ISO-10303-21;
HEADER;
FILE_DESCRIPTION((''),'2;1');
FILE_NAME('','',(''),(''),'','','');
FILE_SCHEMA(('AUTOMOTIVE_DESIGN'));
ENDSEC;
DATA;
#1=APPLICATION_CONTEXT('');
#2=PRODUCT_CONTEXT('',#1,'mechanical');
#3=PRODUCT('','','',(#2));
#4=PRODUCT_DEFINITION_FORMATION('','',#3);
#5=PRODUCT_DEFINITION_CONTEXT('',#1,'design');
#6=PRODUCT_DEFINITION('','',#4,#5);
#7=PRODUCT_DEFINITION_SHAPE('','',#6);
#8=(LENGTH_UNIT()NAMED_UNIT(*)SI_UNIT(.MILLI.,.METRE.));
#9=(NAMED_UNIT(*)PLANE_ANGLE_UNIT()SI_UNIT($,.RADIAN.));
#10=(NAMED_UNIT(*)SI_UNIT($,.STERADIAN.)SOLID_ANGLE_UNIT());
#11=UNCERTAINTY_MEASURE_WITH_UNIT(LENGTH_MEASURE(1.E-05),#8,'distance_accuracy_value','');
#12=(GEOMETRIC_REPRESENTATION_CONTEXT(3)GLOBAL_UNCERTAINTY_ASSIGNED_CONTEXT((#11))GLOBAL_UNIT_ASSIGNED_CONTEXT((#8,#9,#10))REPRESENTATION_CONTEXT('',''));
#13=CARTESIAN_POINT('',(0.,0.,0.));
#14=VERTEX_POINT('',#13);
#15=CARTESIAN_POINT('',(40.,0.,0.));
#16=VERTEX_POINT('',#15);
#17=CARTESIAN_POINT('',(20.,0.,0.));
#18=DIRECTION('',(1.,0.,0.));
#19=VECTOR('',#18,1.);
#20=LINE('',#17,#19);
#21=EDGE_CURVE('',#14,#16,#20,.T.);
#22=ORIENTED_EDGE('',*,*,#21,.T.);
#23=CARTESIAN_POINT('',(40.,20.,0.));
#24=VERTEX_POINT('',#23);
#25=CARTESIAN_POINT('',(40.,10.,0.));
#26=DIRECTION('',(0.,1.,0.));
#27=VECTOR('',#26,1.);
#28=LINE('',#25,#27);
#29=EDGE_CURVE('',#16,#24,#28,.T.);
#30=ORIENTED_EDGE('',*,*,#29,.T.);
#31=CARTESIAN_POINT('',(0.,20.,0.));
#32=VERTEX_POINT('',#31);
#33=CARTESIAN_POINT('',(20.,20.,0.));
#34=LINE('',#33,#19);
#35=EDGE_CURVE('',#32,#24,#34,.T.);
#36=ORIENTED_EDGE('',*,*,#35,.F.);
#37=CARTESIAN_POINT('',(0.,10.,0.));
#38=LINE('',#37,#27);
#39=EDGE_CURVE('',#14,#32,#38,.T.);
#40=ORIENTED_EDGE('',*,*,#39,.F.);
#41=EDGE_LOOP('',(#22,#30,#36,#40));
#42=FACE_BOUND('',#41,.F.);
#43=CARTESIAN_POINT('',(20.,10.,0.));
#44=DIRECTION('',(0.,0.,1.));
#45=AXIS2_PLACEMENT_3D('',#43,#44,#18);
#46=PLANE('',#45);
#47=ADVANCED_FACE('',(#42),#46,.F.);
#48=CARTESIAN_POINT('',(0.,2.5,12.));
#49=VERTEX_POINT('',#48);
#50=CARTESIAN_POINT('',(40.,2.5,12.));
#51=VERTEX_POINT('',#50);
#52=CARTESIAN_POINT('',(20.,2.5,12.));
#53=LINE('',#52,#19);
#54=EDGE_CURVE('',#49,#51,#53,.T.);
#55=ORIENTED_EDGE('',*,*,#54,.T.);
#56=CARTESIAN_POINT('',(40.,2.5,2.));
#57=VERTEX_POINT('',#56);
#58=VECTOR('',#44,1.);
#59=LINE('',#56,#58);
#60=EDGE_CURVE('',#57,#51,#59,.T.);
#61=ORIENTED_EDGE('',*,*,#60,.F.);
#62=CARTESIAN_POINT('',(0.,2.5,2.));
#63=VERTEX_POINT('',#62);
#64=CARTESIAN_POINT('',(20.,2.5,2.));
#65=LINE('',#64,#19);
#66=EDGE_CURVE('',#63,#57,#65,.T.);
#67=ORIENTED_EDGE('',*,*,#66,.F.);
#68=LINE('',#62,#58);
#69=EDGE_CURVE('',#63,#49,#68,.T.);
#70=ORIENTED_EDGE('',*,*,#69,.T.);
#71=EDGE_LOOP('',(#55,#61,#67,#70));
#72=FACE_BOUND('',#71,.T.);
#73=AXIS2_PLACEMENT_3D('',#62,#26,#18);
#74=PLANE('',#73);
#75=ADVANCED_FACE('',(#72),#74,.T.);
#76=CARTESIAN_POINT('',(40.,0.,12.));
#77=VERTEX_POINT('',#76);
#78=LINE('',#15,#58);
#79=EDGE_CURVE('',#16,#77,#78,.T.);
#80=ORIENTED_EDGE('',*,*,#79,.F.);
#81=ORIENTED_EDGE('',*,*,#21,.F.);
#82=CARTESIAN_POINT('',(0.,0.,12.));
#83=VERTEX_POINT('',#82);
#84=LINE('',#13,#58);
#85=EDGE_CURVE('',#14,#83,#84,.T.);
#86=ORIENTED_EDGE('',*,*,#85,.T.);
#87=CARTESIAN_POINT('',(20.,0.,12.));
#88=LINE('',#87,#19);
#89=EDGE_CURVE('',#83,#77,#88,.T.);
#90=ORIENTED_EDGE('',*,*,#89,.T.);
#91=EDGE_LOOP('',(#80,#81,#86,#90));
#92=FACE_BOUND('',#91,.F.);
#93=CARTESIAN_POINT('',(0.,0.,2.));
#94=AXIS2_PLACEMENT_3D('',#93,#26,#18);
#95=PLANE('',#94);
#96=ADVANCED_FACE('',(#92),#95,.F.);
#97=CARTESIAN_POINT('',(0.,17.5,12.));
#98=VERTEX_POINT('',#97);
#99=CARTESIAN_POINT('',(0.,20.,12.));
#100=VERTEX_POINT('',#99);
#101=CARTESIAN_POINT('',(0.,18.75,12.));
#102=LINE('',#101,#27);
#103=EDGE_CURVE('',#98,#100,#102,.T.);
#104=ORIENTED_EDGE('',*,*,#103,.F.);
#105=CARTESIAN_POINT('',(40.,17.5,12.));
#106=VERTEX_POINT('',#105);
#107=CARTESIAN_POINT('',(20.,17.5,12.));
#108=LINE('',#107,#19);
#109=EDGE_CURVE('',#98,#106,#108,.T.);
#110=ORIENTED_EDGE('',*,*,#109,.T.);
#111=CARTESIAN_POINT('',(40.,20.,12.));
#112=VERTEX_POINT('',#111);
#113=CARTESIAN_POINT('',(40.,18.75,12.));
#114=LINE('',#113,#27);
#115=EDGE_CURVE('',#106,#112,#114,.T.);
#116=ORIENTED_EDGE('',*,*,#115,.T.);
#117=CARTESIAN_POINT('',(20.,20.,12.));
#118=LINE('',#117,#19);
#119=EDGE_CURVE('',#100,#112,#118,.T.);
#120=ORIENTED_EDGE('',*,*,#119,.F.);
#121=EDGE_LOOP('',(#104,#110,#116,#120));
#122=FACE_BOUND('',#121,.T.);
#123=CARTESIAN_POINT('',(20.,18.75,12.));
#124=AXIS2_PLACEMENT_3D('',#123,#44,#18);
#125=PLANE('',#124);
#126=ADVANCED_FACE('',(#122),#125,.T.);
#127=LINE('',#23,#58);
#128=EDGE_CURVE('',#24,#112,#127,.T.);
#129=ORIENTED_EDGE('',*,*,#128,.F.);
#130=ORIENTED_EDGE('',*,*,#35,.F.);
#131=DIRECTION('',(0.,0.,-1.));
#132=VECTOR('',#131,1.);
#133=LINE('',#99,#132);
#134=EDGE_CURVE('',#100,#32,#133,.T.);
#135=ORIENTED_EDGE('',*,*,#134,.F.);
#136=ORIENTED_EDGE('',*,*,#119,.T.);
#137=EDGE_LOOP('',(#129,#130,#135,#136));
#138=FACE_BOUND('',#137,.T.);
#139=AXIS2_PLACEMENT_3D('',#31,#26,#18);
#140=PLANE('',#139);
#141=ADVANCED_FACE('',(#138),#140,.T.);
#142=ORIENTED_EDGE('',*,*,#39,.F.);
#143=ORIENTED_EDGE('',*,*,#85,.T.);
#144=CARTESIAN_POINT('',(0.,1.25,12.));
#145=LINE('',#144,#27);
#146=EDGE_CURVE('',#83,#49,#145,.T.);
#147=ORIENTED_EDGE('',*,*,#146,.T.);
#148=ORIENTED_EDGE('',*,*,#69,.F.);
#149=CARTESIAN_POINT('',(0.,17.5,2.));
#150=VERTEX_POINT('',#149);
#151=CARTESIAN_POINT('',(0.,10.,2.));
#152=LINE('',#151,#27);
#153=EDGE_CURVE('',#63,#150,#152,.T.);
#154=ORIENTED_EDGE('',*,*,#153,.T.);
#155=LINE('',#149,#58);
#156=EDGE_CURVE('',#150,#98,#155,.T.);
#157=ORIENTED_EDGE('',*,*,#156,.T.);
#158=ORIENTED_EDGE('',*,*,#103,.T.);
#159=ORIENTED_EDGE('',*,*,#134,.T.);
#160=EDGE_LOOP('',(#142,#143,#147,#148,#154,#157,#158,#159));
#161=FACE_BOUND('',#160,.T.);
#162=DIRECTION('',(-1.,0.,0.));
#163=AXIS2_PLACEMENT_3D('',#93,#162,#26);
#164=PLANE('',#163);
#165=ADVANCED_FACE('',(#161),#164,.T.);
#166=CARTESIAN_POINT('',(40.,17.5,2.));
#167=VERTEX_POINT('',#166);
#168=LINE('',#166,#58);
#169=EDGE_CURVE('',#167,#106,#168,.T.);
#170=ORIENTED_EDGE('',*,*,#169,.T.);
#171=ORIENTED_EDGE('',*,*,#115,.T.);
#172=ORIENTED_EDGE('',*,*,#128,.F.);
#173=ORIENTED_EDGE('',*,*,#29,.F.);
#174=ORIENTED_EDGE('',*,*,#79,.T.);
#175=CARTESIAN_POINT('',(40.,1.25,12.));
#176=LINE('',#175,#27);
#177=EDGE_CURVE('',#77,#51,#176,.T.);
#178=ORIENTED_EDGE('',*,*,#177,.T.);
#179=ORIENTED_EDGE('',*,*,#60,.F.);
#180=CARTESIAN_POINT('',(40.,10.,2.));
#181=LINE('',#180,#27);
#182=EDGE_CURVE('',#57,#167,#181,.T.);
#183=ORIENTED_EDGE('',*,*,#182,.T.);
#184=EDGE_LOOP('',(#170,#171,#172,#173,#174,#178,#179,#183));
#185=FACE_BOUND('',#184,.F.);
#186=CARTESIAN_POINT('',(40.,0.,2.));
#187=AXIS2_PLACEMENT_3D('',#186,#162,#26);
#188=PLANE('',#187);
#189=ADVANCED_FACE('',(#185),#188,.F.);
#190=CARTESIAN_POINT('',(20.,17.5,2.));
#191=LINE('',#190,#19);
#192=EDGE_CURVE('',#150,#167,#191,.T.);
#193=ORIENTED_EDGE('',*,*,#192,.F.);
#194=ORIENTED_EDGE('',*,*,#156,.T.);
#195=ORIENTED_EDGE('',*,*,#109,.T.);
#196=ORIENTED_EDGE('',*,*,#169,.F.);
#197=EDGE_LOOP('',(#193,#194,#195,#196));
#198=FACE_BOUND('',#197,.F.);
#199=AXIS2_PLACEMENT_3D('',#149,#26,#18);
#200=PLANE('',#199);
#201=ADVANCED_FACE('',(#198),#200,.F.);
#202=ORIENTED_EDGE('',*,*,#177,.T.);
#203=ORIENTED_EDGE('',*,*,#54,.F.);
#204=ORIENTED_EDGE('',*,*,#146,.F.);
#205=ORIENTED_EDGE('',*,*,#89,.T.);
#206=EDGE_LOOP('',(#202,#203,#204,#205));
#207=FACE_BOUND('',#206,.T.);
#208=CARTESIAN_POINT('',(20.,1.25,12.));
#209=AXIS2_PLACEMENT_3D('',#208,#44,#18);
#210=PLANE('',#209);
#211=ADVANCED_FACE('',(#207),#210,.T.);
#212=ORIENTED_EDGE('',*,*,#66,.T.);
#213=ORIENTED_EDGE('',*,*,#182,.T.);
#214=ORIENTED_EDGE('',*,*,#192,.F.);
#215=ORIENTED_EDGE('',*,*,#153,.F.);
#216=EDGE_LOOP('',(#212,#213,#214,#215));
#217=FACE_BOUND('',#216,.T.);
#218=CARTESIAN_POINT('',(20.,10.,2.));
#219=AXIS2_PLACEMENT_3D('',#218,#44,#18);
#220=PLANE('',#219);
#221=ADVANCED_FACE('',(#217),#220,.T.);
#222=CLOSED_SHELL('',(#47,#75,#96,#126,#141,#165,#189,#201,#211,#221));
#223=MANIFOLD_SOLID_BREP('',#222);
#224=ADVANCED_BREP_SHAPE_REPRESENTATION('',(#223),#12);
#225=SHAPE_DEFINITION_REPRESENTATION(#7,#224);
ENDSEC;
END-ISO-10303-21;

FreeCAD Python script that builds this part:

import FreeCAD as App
import Part
import Sketcher
from FreeCAD import Vector

doc = App.newDocument("Part")
body = doc.addObject("PartDesign::Body", "Body")

sketch1 = body.newObject("Sketcher::SketchObject", "Sketch")
sketch1.AttachmentSupport = (doc.getObject("XY_Plane"), [""])
sketch1.MapMode = "FlatFace"
sketch1.addGeometry([
    Part.LineSegment(Vector(0, 20, 0), Vector(0, 0, 0)),
    Part.LineSegment(Vector(0, 0, 0), Vector(40, 0, 0)),
    Part.LineSegment(Vector(40, 0, 0), Vector(40, 20, 0)),
    Part.LineSegment(Vector(40, 20, 0), Vector(0, 20, 0)),
], False)
sketch1.addConstraint([
    Sketcher.Constraint("Coincident", 0, 2, 1, 1),
    Sketcher.Constraint("Coincident", 1, 2, 2, 1),
    Sketcher.Constraint("Coincident", 2, 2, 3, 1),
    Sketcher.Constraint("Coincident", 3, 2, 0, 1),
    Sketcher.Constraint("Vertical", 0),
    Sketcher.Constraint("Horizontal", 1),
    Sketcher.Constraint("Vertical", 2),
    Sketcher.Constraint("Horizontal", 3),
    Sketcher.Constraint("Coincident", 0, 2, -1, 1),
    Sketcher.Constraint("DistanceX", 1, 1, 1, 2, 40.0),
    Sketcher.Constraint("DistanceY", 0, 2, 0, 1, 20.0),
])
pad1 = body.newObject("PartDesign::Pad", "Pad")
pad1.Profile = sketch1
pad1.Length = 2

sketch2 = body.newObject("Sketcher::SketchObject", "Sketch001")
sketch2.AttachmentSupport = (doc.getObject("XY_Plane"), [""])
sketch2.MapMode = "FlatFace"
sketch2.AttachmentOffset = App.Placement(Vector(0, 0, 2), App.Rotation())
sketch2.addGeometry([
    Part.LineSegment(Vector(0, 2.5, 0), Vector(0, 0, 0)),
    Part.LineSegment(Vector(0, 0, 0), Vector(40, 0, 0)),
    Part.LineSegment(Vector(40, 0, 0), Vector(40, 2.5, 0)),
    Part.LineSegment(Vector(40, 2.5, 0), Vector(0, 2.5, 0)),
    Part.LineSegment(Vector(0, 20, 0), Vector(0, 17.5, 0)),
    Part.LineSegment(Vector(0, 17.5, 0), Vector(40, 17.5, 0)),
    Part.LineSegment(Vector(40, 17.5, 0), Vector(40, 20, 0)),
    Part.LineSegment(Vector(40, 20, 0), Vector(0, 20, 0)),
], False)
sketch2.addConstraint([
    Sketcher.Constraint("Coincident", 0, 2, 1, 1),
    Sketcher.Constraint("Coincident", 1, 2, 2, 1),
    Sketcher.Constraint("Coincident", 2, 2, 3, 1),
    Sketcher.Constraint("Coincident", 3, 2, 0, 1),
    Sketcher.Constraint("Coincident", 4, 2, 5, 1),
    Sketcher.Constraint("Coincident", 5, 2, 6, 1),
    Sketcher.Constraint("Coincident", 6, 2, 7, 1),
    Sketcher.Constraint("Coincident", 7, 2, 4, 1),
    Sketcher.Constraint("Vertical", 0),
    Sketcher.Constraint("Horizontal", 1),
    Sketcher.Constraint("Vertical", 2),
    Sketcher.Constraint("Horizontal", 3),
    Sketcher.Constraint("Vertical", 4),
    Sketcher.Constraint("Horizontal", 5),
    Sketcher.Constraint("Vertical", 6),
    Sketcher.Constraint("Horizontal", 7),
    Sketcher.Constraint("Coincident", 0, 2, -1, 1),
    Sketcher.Constraint("PointOnObject", 4, 2, -2),
    Sketcher.Constraint("Vertical", 2, 2, 5, 2),
    Sketcher.Constraint("Equal", 2, 4),
    Sketcher.Constraint("DistanceX", 1, 1, 1, 2, 40.0),
    Sketcher.Constraint("DistanceY", 0, 2, 0, 1, 2.5),
    Sketcher.Constraint("DistanceY", -1, 1, 6, 2, 20.0),
])
pad2 = body.newObject("PartDesign::Pad", "Pad001")
pad2.Profile = sketch2
pad2.Length = 10

doc.recompute()
